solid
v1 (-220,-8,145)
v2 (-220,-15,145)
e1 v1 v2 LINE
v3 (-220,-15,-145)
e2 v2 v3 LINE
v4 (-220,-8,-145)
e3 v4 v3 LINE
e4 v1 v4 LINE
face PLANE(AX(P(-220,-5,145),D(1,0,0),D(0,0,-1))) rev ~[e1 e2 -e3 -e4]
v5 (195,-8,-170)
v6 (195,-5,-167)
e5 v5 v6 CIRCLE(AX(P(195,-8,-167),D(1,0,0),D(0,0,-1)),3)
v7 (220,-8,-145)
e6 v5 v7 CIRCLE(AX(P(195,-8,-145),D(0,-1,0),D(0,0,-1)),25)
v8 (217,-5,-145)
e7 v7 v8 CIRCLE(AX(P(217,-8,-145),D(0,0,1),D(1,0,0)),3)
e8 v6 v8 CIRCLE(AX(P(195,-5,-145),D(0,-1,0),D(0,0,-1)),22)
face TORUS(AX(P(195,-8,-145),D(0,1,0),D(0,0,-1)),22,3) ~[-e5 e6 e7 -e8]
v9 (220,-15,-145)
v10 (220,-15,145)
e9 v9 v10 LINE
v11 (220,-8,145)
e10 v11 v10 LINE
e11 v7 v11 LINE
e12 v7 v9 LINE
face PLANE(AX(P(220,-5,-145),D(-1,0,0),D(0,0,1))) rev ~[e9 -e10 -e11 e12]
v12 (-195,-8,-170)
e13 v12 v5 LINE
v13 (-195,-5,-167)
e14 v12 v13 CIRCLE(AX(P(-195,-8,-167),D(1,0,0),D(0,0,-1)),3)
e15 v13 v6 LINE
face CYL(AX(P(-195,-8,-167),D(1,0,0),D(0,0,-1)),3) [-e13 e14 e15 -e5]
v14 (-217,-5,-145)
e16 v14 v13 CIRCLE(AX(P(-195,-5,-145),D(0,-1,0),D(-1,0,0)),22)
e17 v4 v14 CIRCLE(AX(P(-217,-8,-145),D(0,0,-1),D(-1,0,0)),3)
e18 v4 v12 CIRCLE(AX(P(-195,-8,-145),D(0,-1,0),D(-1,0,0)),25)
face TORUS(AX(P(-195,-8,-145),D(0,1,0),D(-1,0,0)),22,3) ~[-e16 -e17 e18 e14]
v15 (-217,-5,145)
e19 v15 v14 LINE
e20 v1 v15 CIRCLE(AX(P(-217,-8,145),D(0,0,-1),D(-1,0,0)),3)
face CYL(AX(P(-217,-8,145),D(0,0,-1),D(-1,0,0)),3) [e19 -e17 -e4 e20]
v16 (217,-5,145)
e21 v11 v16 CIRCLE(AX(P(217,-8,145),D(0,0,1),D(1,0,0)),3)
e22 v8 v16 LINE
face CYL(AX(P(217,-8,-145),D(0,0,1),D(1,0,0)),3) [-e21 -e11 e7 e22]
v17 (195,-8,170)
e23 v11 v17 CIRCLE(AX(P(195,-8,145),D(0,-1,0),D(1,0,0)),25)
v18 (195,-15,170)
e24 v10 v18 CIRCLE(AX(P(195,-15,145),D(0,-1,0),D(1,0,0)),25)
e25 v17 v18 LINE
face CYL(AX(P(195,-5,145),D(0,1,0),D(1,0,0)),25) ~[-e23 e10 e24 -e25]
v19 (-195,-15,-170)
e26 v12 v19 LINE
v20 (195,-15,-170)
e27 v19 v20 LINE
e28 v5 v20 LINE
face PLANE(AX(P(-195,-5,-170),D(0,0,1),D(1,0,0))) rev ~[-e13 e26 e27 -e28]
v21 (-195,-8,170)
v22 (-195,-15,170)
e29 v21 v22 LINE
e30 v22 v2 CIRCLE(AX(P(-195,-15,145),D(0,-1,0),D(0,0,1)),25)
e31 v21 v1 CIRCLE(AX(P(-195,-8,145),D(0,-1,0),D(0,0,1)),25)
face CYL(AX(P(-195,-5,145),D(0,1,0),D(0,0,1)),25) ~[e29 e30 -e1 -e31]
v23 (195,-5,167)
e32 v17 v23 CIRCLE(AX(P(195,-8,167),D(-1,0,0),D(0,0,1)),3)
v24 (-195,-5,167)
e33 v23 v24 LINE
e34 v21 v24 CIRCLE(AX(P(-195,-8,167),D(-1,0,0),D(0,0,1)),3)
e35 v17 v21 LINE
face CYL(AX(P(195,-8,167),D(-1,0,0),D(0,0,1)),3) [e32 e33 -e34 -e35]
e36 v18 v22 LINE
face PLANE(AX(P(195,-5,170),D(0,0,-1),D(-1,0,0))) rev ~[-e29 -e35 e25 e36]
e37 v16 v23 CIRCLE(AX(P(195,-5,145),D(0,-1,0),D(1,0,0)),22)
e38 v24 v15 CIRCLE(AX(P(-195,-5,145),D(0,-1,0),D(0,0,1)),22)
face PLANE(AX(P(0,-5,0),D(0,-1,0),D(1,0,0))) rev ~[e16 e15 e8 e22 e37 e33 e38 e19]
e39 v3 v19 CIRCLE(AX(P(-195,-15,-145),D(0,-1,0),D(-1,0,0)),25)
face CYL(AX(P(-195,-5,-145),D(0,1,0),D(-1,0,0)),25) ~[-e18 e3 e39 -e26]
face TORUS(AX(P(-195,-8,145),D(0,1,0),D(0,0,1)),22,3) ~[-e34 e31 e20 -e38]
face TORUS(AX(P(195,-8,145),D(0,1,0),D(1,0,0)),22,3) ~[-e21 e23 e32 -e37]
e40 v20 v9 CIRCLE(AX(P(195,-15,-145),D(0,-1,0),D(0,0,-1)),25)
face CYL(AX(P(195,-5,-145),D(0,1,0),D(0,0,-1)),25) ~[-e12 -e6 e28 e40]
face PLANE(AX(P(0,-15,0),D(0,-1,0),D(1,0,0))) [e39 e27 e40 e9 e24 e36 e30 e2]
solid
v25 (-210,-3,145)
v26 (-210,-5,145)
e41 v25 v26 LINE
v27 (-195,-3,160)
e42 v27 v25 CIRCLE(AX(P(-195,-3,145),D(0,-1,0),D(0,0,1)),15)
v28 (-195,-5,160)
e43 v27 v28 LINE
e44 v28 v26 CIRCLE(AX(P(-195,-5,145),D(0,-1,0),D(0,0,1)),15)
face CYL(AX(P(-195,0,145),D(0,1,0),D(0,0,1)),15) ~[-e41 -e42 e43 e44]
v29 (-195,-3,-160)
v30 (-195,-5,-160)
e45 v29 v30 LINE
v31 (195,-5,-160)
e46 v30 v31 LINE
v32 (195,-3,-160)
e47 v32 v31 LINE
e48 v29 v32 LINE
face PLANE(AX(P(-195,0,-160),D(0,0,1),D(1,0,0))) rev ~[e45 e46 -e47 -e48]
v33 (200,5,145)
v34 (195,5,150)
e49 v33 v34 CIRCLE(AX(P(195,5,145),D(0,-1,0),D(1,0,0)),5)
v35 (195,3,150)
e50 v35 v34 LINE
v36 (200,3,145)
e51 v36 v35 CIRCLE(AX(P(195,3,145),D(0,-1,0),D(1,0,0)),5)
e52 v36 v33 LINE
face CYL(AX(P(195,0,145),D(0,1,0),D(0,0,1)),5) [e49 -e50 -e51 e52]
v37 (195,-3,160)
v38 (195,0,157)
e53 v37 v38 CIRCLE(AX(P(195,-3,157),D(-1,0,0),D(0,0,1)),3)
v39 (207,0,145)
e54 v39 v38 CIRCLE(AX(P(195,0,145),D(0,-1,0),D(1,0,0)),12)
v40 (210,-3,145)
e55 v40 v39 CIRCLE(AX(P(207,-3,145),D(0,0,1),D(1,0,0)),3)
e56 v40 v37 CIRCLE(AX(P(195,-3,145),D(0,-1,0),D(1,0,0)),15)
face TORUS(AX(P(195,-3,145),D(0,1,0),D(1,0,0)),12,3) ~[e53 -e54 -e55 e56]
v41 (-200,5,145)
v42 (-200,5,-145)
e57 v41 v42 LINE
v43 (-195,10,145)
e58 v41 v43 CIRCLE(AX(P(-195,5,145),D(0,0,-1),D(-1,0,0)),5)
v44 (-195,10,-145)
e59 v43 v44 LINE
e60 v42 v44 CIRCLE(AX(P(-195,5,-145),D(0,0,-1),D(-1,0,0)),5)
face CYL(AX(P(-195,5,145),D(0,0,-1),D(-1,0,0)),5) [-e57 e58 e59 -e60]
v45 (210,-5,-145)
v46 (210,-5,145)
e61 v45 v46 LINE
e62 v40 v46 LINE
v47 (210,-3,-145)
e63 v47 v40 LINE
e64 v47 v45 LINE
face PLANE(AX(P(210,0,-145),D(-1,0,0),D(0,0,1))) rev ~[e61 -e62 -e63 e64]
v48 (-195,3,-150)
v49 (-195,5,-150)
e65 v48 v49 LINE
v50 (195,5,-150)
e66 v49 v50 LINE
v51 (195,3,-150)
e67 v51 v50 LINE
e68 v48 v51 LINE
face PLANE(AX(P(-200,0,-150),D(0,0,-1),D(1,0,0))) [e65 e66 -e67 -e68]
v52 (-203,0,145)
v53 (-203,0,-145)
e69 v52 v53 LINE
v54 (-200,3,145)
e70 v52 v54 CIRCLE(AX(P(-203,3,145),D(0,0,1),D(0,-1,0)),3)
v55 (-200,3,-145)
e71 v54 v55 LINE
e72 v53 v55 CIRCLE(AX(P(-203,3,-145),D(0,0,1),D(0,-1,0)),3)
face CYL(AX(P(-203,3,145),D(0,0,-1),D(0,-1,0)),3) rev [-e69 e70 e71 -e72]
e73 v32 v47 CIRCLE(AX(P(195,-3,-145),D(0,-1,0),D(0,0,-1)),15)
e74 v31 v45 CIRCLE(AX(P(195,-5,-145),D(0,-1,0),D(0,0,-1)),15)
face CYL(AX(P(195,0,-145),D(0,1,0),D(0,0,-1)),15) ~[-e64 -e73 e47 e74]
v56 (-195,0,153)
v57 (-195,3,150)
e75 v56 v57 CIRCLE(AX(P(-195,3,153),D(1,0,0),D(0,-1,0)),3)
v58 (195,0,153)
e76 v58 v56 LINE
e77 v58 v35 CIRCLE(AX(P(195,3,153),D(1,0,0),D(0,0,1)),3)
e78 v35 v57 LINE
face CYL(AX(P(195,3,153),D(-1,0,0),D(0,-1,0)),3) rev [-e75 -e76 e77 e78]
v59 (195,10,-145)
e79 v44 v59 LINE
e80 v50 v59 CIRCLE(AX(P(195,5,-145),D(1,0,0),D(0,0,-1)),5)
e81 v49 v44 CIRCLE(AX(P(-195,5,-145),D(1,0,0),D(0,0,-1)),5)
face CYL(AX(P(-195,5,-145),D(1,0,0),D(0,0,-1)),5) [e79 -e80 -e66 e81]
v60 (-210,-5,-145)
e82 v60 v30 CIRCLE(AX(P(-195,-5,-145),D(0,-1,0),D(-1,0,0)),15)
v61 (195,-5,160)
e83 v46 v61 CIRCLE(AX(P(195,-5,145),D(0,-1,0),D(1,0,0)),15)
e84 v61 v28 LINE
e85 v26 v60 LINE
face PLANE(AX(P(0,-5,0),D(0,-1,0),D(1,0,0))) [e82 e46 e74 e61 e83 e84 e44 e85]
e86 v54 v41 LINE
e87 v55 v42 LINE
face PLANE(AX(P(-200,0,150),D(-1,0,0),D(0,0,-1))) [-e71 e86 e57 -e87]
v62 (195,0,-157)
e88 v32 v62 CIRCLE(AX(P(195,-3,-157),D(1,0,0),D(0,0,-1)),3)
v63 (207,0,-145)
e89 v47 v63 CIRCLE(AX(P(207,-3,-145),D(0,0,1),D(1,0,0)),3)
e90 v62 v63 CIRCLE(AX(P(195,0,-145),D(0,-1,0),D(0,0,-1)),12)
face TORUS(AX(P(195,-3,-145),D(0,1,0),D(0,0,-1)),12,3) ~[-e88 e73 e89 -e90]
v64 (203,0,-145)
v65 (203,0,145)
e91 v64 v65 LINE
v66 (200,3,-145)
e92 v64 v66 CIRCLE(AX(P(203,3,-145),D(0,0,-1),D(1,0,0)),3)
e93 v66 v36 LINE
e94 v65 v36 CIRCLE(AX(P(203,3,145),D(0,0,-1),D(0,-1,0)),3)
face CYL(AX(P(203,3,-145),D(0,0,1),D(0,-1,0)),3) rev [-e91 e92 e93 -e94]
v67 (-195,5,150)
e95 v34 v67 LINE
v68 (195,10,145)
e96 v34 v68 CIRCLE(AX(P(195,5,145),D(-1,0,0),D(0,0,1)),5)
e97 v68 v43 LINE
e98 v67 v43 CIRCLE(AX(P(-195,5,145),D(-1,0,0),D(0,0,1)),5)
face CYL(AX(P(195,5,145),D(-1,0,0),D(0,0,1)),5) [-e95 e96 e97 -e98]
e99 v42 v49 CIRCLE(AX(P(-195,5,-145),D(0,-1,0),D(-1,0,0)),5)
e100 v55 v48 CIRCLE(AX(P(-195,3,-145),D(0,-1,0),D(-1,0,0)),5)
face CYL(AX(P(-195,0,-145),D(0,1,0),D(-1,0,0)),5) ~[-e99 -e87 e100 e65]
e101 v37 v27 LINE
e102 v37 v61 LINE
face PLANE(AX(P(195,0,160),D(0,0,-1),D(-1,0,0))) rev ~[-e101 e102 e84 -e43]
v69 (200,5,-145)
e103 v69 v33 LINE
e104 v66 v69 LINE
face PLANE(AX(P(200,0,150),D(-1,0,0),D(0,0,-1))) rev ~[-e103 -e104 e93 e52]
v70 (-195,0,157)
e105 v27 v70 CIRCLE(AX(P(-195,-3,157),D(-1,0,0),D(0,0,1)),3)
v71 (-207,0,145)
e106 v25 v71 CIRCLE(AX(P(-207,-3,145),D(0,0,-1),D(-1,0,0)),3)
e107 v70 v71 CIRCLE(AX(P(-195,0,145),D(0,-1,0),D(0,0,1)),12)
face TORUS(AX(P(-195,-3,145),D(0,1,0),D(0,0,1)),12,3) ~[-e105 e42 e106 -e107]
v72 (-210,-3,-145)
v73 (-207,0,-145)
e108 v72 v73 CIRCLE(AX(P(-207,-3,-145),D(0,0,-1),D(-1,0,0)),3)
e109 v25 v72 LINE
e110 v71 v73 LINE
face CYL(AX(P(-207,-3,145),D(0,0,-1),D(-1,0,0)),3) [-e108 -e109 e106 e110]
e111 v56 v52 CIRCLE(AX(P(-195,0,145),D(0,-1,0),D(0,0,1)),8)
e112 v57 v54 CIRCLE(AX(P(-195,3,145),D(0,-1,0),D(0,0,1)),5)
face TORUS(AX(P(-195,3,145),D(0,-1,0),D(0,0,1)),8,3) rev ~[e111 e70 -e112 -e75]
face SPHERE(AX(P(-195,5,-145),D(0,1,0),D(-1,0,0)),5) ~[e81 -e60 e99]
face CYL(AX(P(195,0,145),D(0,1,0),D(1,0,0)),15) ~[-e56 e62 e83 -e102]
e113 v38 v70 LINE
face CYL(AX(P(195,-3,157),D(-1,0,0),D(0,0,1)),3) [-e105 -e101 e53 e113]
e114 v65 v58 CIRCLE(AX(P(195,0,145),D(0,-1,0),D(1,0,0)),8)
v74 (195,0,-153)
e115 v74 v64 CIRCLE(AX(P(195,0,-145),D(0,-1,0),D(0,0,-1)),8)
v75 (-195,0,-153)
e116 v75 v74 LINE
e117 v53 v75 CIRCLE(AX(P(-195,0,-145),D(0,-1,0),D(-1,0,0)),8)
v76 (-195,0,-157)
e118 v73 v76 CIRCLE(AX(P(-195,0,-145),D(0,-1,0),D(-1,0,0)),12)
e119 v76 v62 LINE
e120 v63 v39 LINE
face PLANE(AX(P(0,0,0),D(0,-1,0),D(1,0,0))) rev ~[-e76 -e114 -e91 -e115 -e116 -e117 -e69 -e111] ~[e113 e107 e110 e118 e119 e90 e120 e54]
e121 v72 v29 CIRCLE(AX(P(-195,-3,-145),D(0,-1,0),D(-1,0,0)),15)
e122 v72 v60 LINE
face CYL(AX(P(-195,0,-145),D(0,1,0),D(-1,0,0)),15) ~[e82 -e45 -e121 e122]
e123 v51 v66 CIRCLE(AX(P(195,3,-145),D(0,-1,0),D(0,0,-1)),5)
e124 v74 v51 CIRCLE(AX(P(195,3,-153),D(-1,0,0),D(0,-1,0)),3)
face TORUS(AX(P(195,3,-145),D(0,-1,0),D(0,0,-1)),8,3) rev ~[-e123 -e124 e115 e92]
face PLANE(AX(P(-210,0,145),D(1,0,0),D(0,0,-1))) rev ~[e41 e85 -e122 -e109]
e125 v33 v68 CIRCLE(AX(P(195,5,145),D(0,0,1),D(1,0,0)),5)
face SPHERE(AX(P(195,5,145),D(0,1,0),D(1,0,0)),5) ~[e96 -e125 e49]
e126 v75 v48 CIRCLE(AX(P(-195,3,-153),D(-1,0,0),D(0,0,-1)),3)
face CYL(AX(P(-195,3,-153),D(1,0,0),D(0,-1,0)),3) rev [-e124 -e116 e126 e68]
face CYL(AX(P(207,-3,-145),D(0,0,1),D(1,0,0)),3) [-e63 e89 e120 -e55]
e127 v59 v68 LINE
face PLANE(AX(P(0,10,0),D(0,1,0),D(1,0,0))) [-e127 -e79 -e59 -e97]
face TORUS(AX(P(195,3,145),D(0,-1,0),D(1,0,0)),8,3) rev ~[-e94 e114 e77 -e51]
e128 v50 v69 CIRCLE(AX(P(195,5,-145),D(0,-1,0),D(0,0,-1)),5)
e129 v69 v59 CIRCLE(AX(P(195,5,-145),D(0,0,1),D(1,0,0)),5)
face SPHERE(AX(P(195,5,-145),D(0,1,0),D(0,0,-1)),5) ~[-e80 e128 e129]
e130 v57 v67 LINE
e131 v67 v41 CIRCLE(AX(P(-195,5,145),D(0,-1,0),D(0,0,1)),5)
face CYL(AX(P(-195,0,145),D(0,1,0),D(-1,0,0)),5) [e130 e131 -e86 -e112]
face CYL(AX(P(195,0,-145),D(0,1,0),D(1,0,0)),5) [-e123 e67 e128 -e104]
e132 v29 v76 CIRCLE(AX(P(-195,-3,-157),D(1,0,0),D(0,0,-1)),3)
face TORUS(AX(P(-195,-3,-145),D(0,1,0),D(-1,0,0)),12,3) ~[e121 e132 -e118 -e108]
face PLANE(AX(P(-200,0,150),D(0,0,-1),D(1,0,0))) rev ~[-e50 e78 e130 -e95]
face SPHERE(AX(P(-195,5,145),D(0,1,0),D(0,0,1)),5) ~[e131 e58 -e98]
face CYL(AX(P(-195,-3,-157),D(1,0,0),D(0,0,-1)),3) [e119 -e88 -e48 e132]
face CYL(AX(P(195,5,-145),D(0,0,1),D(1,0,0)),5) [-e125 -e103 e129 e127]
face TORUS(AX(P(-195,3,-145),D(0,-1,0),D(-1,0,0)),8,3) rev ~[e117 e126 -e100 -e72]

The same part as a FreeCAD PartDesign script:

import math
import FreeCAD as App
import Part
import Sketcher

V = App.Vector


def edges_at(feature, points):
    """Names of the edges that pass closest to the given points."""
    edges = feature.Shape.Edges
    near = lambda p: min(range(len(edges)), key=lambda i: edges[i].distToShape(Part.Vertex(*p))[0])
    return sorted({f"Edge{near(p) + 1}" for p in points})

doc = App.newDocument("Part")
body = doc.addObject("PartDesign::Body", "Body")

sketch1 = body.newObject("Sketcher::SketchObject", "Sketch")
sketch1.AttachmentSupport = (doc.getObject("XZ_Plane"), [""])
sketch1.MapMode = "FlatFace"
sketch1.addGeometry(Part.LineSegment(V(-200, -150, 0), V(-200, 150, 0)), False)
sketch1.addGeometry(Part.LineSegment(V(-200, 150, 0), V(200, 150, 0)), False)
sketch1.addGeometry(Part.LineSegment(V(200, 150, 0), V(200, -150, 0)), False)
sketch1.addGeometry(Part.LineSegment(V(200, -150, 0), V(-200, -150, 0)), False)
sketch1.addConstraint(Sketcher.Constraint("Coincident", 0, 2, 1, 1))
sketch1.addConstraint(Sketcher.Constraint("Coincident", 1, 2, 2, 1))
sketch1.addConstraint(Sketcher.Constraint("Coincident", 2, 2, 3, 1))
sketch1.addConstraint(Sketcher.Constraint("Coincident", 3, 2, 0, 1))
sketch1.addConstraint(Sketcher.Constraint("Vertical", 0))
sketch1.addConstraint(Sketcher.Constraint("Horizontal", 1))
sketch1.addConstraint(Sketcher.Constraint("Vertical", 2))
sketch1.addConstraint(Sketcher.Constraint("Horizontal", 3))
sketch1.addConstraint(Sketcher.Constraint("Symmetric", 0, 2, 2, 2, -1, 1))
sketch1.addConstraint(Sketcher.Constraint("DistanceX", 1, 1, 1, 2, 400.0))
sketch1.addConstraint(Sketcher.Constraint("DistanceY", 0, 1, 0, 2, 300.0))
pad1 = body.newObject("PartDesign::Pad", "Pad")
pad1.Profile = sketch1
pad1.Length = 10
pad1.Reversed = True
doc.recompute()

fillet = body.newObject("PartDesign::Fillet", "Fillet")
fillet.Base = (pad1, edges_at(pad1, [
    (-200, 5, -150),
    (200, 5, -150),
    (200, 5, 150),
    (-200, 5, 150),
]))
fillet.Radius = 5
doc.recompute()

fillet2 = body.newObject("PartDesign::Fillet", "Fillet001")
fillet2.Base = (fillet, edges_at(fillet, [
    (-200, 10, 0),
    (0, 10, -150),
    (0, 10, 150),
    (200, 10, 0),
    (198.536, 10, 148.536),
    (198.536, 10, -148.536),
    (-198.536, 10, 148.536),
    (-198.536, 10, -148.536),
]))
fillet2.Radius = 5

sketch2 = body.newObject("Sketcher::SketchObject", "Sketch001")
sketch2.AttachmentSupport = (doc.getObject("XZ_Plane"), [""])
sketch2.MapMode = "FlatFace"
sketch2.addGeometry(Part.LineSegment(V(195, 160, 0), V(-195, 160, 0)), False)
sketch2.addGeometry(Part.ArcOfCircle(Part.Circle(V(-195, 145, 0), V(0, 0, 1), 15), math.radians(90), math.radians(180)), False)
sketch2.addGeometry(Part.LineSegment(V(-210, 145, 0), V(-210, -145, 0)), False)
sketch2.addGeometry(Part.ArcOfCircle(Part.Circle(V(-195, -145, 0), V(0, 0, 1), 15), math.radians(180), math.radians(270)), False)
sketch2.addGeometry(Part.LineSegment(V(-195, -160, 0), V(195, -160, 0)), False)
sketch2.addGeometry(Part.ArcOfCircle(Part.Circle(V(195, -145, 0), V(0, 0, 1), 15), math.radians(-90), math.radians(0)), False)
sketch2.addGeometry(Part.LineSegment(V(210, -145, 0), V(210, 145, 0)), False)
sketch2.addGeometry(Part.ArcOfCircle(Part.Circle(V(195, 145, 0), V(0, 0, 1), 15), math.radians(0), math.radians(90)), False)
sketch2.addConstraint(Sketcher.Constraint("Tangent", 0, 2, 1, 1))
sketch2.addConstraint(Sketcher.Constraint("Tangent", 1, 2, 2, 1))
sketch2.addConstraint(Sketcher.Constraint("Tangent", 2, 2, 3, 1))
sketch2.addConstraint(Sketcher.Constraint("Tangent", 3, 2, 4, 1))
sketch2.addConstraint(Sketcher.Constraint("Tangent", 4, 2, 5, 1))
sketch2.addConstraint(Sketcher.Constraint("Tangent", 5, 2, 6, 1))
sketch2.addConstraint(Sketcher.Constraint("Tangent", 6, 2, 7, 1))
sketch2.addConstraint(Sketcher.Constraint("Tangent", 7, 2, 0, 1))
sketch2.addConstraint(Sketcher.Constraint("Horizontal", 0))
sketch2.addConstraint(Sketcher.Constraint("Vertical", 2))
sketch2.addConstraint(Sketcher.Constraint("Horizontal", 4))
sketch2.addConstraint(Sketcher.Constraint("Vertical", 6))
sketch2.addConstraint(Sketcher.Constraint("Equal", 1, 3))
sketch2.addConstraint(Sketcher.Constraint("Equal", 3, 5))
sketch2.addConstraint(Sketcher.Constraint("Equal", 5, 7))
sketch2.addConstraint(Sketcher.Constraint("Symmetric", 1, 3, 5, 3, -1, 1))
sketch2.addConstraint(Sketcher.Constraint("Radius", 1, 15.0))
sketch2.addConstraint(Sketcher.Constraint("DistanceX", 0, 2, 0, 1, 390.0))
sketch2.addConstraint(Sketcher.Constraint("DistanceY", 2, 2, 2, 1, 290.0))
pad2 = body.newObject("PartDesign::Pad", "Pad001")
pad2.Profile = sketch2
pad2.Length = 5
doc.recompute()

fillet3 = body.newObject("PartDesign::Fillet", "Fillet002")
fillet3.Base = (pad2, edges_at(pad2, [
    (-200, 0, 0),
    (0, 0, -150),
    (200, 0, 0),
    (0, 0, 150),
    (198.536, 0, 148.536),
    (198.536, 0, -148.536),
    (-198.536, 0, 148.536),
    (-198.536, 0, -148.536),
    (205.607, 0, 155.607),
    (0, 0, 160),
    (-205.607, 0, 155.607),
    (-210, 0, 0),
    (-205.607, 0, -155.607),
    (0, 0, -160),
    (205.607, 0, -155.607),
    (210, 0, 0),
]))
fillet3.Radius = 3
body2 = doc.addObject("PartDesign::Body", "Body001")

sketch3 = body2.newObject("Sketcher::SketchObject", "Sketch002")
sketch3.AttachmentSupport = (doc.getObject("XZ_Plane001"), [""])
sketch3.MapMode = "FlatFace"
sketch3.AttachmentOffset = App.Placement(V(0, 0, 5), App.Rotation())
sketch3.addGeometry(Part.LineSegment(V(195, 170, 0), V(-195, 170, 0)), False)
sketch3.addGeometry(Part.ArcOfCircle(Part.Circle(V(-195, 145, 0), V(0, 0, 1), 25), math.radians(90), math.radians(180)), False)
sketch3.addGeometry(Part.LineSegment(V(-220, 145, 0), V(-220, -145, 0)), False)
sketch3.addGeometry(Part.ArcOfCircle(Part.Circle(V(-195, -145, 0), V(0, 0, 1), 25), math.radians(180), math.radians(270)), False)
sketch3.addGeometry(Part.LineSegment(V(-195, -170, 0), V(195, -170, 0)), False)
sketch3.addGeometry(Part.ArcOfCircle(Part.Circle(V(195, -145, 0), V(0, 0, 1), 25), math.radians(-90), math.radians(0)), False)
sketch3.addGeometry(Part.LineSegment(V(220, -145, 0), V(220, 145, 0)), False)
sketch3.addGeometry(Part.ArcOfCircle(Part.Circle(V(195, 145, 0), V(0, 0, 1), 25), math.radians(0), math.radians(90)), False)
sketch3.addConstraint(Sketcher.Constraint("Tangent", 0, 2, 1, 1))
sketch3.addConstraint(Sketcher.Constraint("Tangent", 1, 2, 2, 1))
sketch3.addConstraint(Sketcher.Constraint("Tangent", 2, 2, 3, 1))
sketch3.addConstraint(Sketcher.Constraint("Tangent", 3, 2, 4, 1))
sketch3.addConstraint(Sketcher.Constraint("Tangent", 4, 2, 5, 1))
sketch3.addConstraint(Sketcher.Constraint("Tangent", 5, 2, 6, 1))
sketch3.addConstraint(Sketcher.Constraint("Tangent", 6, 2, 7, 1))
sketch3.addConstraint(Sketcher.Constraint("Tangent", 7, 2, 0, 1))
sketch3.addConstraint(Sketcher.Constraint("Horizontal", 0))
sketch3.addConstraint(Sketcher.Constraint("Vertical", 2))
sketch3.addConstraint(Sketcher.Constraint("Horizontal", 4))
sketch3.addConstraint(Sketcher.Constraint("Vertical", 6))
sketch3.addConstraint(Sketcher.Constraint("Equal", 1, 3))
sketch3.addConstraint(Sketcher.Constraint("Equal", 3, 5))
sketch3.addConstraint(Sketcher.Constraint("Equal", 5, 7))
sketch3.addConstraint(Sketcher.Constraint("Symmetric", 1, 3, 5, 3, -1, 1))
sketch3.addConstraint(Sketcher.Constraint("Radius", 1, 25.0))
sketch3.addConstraint(Sketcher.Constraint("DistanceX", 0, 2, 0, 1, 390.0))
sketch3.addConstraint(Sketcher.Constraint("DistanceY", 2, 2, 2, 1, 290.0))
pad3 = body2.newObject("PartDesign::Pad", "Pad002")
pad3.Profile = sketch3
pad3.Length = 10
doc.recompute()

fillet4 = body2.newObject("PartDesign::Fillet", "Fillet003")
fillet4.Base = (pad3, edges_at(pad3, [
    (0, -5, -170),
    (-212.678, -5, -162.678),
    (-220, -5, 0),
    (-212.678, -5, 162.678),
    (0, -5, 170),
    (212.678, -5, 162.678),
    (220, -5, 0),
    (212.678, -5, -162.678),
]))
fillet4.Radius = 3

doc.recompute()
